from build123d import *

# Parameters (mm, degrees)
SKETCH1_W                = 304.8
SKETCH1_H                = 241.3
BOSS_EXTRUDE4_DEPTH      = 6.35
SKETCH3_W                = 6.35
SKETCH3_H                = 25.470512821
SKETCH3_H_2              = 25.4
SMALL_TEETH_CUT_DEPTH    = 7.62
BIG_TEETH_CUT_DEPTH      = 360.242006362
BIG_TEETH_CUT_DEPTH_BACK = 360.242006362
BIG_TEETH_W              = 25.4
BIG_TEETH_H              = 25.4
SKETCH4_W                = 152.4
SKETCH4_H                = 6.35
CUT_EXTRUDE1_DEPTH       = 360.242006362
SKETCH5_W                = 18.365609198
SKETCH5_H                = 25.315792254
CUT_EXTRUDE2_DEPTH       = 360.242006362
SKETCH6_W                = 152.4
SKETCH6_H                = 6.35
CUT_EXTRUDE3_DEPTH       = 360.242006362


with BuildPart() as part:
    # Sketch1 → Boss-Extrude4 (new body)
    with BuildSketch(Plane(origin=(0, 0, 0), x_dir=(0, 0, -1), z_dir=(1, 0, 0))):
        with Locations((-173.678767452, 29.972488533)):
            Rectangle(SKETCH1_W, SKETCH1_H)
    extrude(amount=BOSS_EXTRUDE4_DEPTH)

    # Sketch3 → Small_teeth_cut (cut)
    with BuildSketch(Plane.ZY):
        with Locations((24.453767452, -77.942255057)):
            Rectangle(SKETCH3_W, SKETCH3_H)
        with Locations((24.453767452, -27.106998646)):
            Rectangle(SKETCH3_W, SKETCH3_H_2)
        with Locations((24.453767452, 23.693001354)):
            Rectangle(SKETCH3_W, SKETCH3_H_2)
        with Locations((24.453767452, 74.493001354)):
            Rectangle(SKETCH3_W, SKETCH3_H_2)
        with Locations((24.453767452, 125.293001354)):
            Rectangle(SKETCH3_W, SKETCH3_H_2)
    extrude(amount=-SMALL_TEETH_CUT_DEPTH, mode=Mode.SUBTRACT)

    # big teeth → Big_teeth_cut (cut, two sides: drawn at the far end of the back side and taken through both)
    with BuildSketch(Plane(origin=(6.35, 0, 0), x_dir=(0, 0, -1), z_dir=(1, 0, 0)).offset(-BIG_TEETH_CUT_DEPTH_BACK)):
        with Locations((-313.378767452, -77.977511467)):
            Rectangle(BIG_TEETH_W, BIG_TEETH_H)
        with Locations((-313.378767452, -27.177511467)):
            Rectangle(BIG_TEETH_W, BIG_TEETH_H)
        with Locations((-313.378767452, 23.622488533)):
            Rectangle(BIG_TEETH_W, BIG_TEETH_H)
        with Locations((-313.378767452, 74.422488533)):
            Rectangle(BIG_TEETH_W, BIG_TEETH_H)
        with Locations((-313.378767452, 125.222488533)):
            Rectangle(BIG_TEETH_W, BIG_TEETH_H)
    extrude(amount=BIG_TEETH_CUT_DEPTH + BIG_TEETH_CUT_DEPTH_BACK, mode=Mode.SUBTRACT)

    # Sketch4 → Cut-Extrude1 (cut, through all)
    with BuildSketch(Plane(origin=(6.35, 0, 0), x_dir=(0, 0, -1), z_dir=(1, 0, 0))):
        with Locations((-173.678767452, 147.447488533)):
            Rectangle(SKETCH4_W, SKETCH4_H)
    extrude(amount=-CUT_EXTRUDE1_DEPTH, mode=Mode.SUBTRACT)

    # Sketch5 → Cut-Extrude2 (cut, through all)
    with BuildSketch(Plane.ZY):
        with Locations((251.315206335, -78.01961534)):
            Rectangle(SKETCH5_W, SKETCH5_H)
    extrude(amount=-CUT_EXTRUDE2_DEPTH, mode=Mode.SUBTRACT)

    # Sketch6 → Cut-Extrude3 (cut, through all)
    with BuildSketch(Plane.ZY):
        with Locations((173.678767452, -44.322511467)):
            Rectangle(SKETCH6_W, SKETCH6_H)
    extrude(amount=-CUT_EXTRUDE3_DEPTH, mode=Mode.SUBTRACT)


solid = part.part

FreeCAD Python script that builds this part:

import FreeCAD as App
import Part
import Sketcher
Q = App.Units.Quantity

doc = App.newDocument("Part")
body = doc.addObject("PartDesign::Body", "Body")

# Sketch on YZ plane
sketch1 = body.newObject("Sketcher::SketchObject", "Sketch")
sketch1.AttachmentSupport = (doc.getObject("YZ_Plane"), [""])
sketch1.MapMode = "FlatFace"
sketch1.addGeometry([
    Part.LineSegment(App.Vector(151, 326, 0), App.Vector(-91, 326, 0)),
    Part.LineSegment(App.Vector(-91, 326, 0), App.Vector(-91, 21, 0)),
    Part.LineSegment(App.Vector(-91, 21, 0), App.Vector(151, 21, 0)),
    Part.LineSegment(App.Vector(151, 21, 0), App.Vector(151, 326, 0)),
], False)
sketch1.addConstraint([
    Sketcher.Constraint("Coincident", 0, 2, 1, 1),
    Sketcher.Constraint("Coincident", 1, 2, 2, 1),
    Sketcher.Constraint("Coincident", 2, 2, 3, 1),
    Sketcher.Constraint("Coincident", 3, 2, 0, 1),
    Sketcher.Constraint("Horizontal", 0),
    Sketcher.Constraint("Vertical", 1),
    Sketcher.Constraint("Horizontal", 2),
    Sketcher.Constraint("Vertical", 3),
    Sketcher.Constraint("DistanceY", 1, 2, 1, 1, Q("12 in")),
    Sketcher.Constraint("DistanceX", 0, 2, 0, 1, Q("9.5 in")),
    Sketcher.Constraint("DistanceX", 0, 2, -1, 1, Q("90.677511 mm")),
    Sketcher.Constraint("DistanceY", -1, 1, 0, 2, Q("326.078767 mm")),
])
pad1 = body.newObject("PartDesign::Pad", "Pad")
pad1.Profile = sketch1
pad1.Length = Q("0.25 in")

# Sketch on YZ plane
sketch2 = body.newObject("Sketcher::SketchObject", "Sketch001")
sketch2.AttachmentSupport = (doc.getObject("YZ_Plane"), [""])
sketch2.MapMode = "FlatFace"
sketch2.addGeometry([
    Part.LineSegment(App.Vector(-65, 21, 0), App.Vector(-91, 21, 0)),  # 0
    Part.LineSegment(App.Vector(-91, 21, 0), App.Vector(-91, 28, 0)),  # 1
    Part.LineSegment(App.Vector(-91, 28, 0), App.Vector(-65, 28, 0)),  # 2
    Part.LineSegment(App.Vector(-65, 28, 0), App.Vector(-65, 21, 0)),  # 3
    Part.LineSegment(App.Vector(-14, 21, 0), App.Vector(-40, 21, 0)),  # 4
    Part.LineSegment(App.Vector(-40, 21, 0), App.Vector(-40, 28, 0)),  # 5
    Part.LineSegment(App.Vector(-40, 28, 0), App.Vector(-14, 28, 0)),  # 6
    Part.LineSegment(App.Vector(-14, 28, 0), App.Vector(-14, 21, 0)),  # 7
    Part.LineSegment(App.Vector(36, 21, 0), App.Vector(11, 21, 0)),  # 8
    Part.LineSegment(App.Vector(11, 21, 0), App.Vector(11, 28, 0)),  # 9
    Part.LineSegment(App.Vector(11, 28, 0), App.Vector(36, 28, 0)),  # 10
    Part.LineSegment(App.Vector(36, 28, 0), App.Vector(36, 21, 0)),  # 11
    Part.LineSegment(App.Vector(87, 21, 0), App.Vector(62, 21, 0)),  # 12
    Part.LineSegment(App.Vector(62, 21, 0), App.Vector(62, 28, 0)),  # 13
    Part.LineSegment(App.Vector(62, 28, 0), App.Vector(87, 28, 0)),  # 14
    Part.LineSegment(App.Vector(87, 28, 0), App.Vector(87, 21, 0)),  # 15
    Part.LineSegment(App.Vector(138, 21, 0), App.Vector(113, 21, 0)),  # 16
    Part.LineSegment(App.Vector(113, 21, 0), App.Vector(113, 28, 0)),  # 17
    Part.LineSegment(App.Vector(113, 28, 0), App.Vector(138, 28, 0)),  # 18
    Part.LineSegment(App.Vector(138, 28, 0), App.Vector(138, 21, 0)),  # 19
], False)
sketch2.addConstraint([
    Sketcher.Constraint("Coincident", 0, 2, 1, 1),
    Sketcher.Constraint("Coincident", 1, 2, 2, 1),
    Sketcher.Constraint("Coincident", 2, 2, 3, 1),
    Sketcher.Constraint("Coincident", 3, 2, 0, 1),
    Sketcher.Constraint("Coincident", 4, 2, 5, 1),
    Sketcher.Constraint("Coincident", 5, 2, 6, 1),
    Sketcher.Constraint("Coincident", 6, 2, 7, 1),
    Sketcher.Constraint("Coincident", 7, 2, 4, 1),
    Sketcher.Constraint("Coincident", 8, 2, 9, 1),
    Sketcher.Constraint("Coincident", 9, 2, 10, 1),
    Sketcher.Constraint("Coincident", 10, 2, 11, 1),
    Sketcher.Constraint("Coincident", 11, 2, 8, 1),
    Sketcher.Constraint("Coincident", 12, 2, 13, 1),
    Sketcher.Constraint("Coincident", 13, 2, 14, 1),
    Sketcher.Constraint("Coincident", 14, 2, 15, 1),
    Sketcher.Constraint("Coincident", 15, 2, 12, 1),
    Sketcher.Constraint("Coincident", 16, 2, 17, 1),
    Sketcher.Constraint("Coincident", 17, 2, 18, 1),
    Sketcher.Constraint("Coincident", 18, 2, 19, 1),
    Sketcher.Constraint("Coincident", 19, 2, 16, 1),
    Sketcher.Constraint("Horizontal", 0),
    Sketcher.Constraint("Vertical", 1),
    Sketcher.Constraint("Horizontal", 2),
    Sketcher.Constraint("Vertical", 3),
    Sketcher.Constraint("Horizontal", 4),
    Sketcher.Constraint("Vertical", 5),
    Sketcher.Constraint("Horizontal", 6),
    Sketcher.Constraint("Vertical", 7),
    Sketcher.Constraint("Horizontal", 8),
    Sketcher.Constraint("Vertical", 9),
    Sketcher.Constraint("Horizontal", 10),
    Sketcher.Constraint("Vertical", 11),
    Sketcher.Constraint("Horizontal", 12),
    Sketcher.Constraint("Vertical", 13),
    Sketcher.Constraint("Horizontal", 14),
    Sketcher.Constraint("Vertical", 15),
    Sketcher.Constraint("Horizontal", 16),
    Sketcher.Constraint("Vertical", 17),
    Sketcher.Constraint("Horizontal", 18),
    Sketcher.Constraint("Vertical", 19),
    Sketcher.Constraint("Horizontal", 3, 2, 4, 2),
    Sketcher.Constraint("Horizontal", 2, 2, 5, 2),
    Sketcher.Constraint("Horizontal", 7, 2, 8, 2),
    Sketcher.Constraint("Horizontal", 6, 2, 9, 2),
    Sketcher.Constraint("Horizontal", 11, 2, 12, 2),
    Sketcher.Constraint("Horizontal", 10, 2, 13, 2),
    Sketcher.Constraint("Horizontal", 15, 2, 16, 2),
    Sketcher.Constraint("Horizontal", 14, 2, 17, 2),
    Sketcher.Constraint("Equal", 6, 8),
    Sketcher.Constraint("Equal", 10, 12),
    Sketcher.Constraint("Equal", 14, 16),
    Sketcher.Constraint("DistanceX", 4, 2, 4, 1, Q("1 in")),
    Sketcher.Constraint("DistanceX", 3, 2, 4, 2, Q("1 in")),
    Sketcher.Constraint("DistanceX", 7, 2, 8, 2, Q("1 in")),
    Sketcher.Constraint("DistanceX", 11, 2, 12, 2, Q("1 in")),
    Sketcher.Constraint("DistanceX", 15, 2, 16, 2, Q("1 in")),
    Sketcher.Constraint("DistanceY", 1, 1, 1, 2, Q("0.25 in")),
    Sketcher.Constraint("DistanceX", 2, 2, -1, 1, Q("65.206999 mm")),
    Sketcher.Constraint("DistanceX", 0, 2, 0, 1, Q("25.470513 mm")),
    Sketcher.Constraint("DistanceY", -1, 1, 0, 2, Q("21.278767 mm")),
])
pocket1 = body.newObject("PartDesign::Pocket", "Pocket")
pocket1.Profile = sketch2
pocket1.Length = Q("0.3 in")
pocket1.Reversed = True

# Sketch on YZ plane
sketch3 = body.newObject("Sketcher::SketchObject", "Sketch002")
sketch3.AttachmentSupport = (doc.getObject("YZ_Plane"), [""])
sketch3.MapMode = "FlatFace"
sketch3.AttachmentOffset = App.Placement(App.Vector(0, 0, 0.25 * 25.4), App.Rotation())
sketch3.addGeometry([
    Part.LineSegment(App.Vector(-65, 326, 0), App.Vector(-91, 326, 0)),  # 0
    Part.LineSegment(App.Vector(-91, 326, 0), App.Vector(-91, 301, 0)),  # 1
    Part.LineSegment(App.Vector(-91, 301, 0), App.Vector(-65, 301, 0)),  # 2
    Part.LineSegment(App.Vector(-65, 301, 0), App.Vector(-65, 326, 0)),  # 3
    Part.LineSegment(App.Vector(-14, 326, 0), App.Vector(-40, 326, 0)),  # 4
    Part.LineSegment(App.Vector(-40, 326, 0), App.Vector(-40, 301, 0)),  # 5
    Part.LineSegment(App.Vector(-40, 301, 0), App.Vector(-14, 301, 0)),  # 6
    Part.LineSegment(App.Vector(-14, 301, 0), App.Vector(-14, 326, 0)),  # 7
    Part.LineSegment(App.Vector(36, 326, 0), App.Vector(11, 326, 0)),  # 8
    Part.LineSegment(App.Vector(11, 326, 0), App.Vector(11, 301, 0)),  # 9
    Part.LineSegment(App.Vector(11, 301, 0), App.Vector(36, 301, 0)),  # 10
    Part.LineSegment(App.Vector(36, 301, 0), App.Vector(36, 326, 0)),  # 11
    Part.LineSegment(App.Vector(87, 326, 0), App.Vector(62, 326, 0)),  # 12
    Part.LineSegment(App.Vector(62, 326, 0), App.Vector(62, 301, 0)),  # 13
    Part.LineSegment(App.Vector(62, 301, 0), App.Vector(87, 301, 0)),  # 14
    Part.LineSegment(App.Vector(87, 301, 0), App.Vector(87, 326, 0)),  # 15
    Part.LineSegment(App.Vector(138, 326, 0), App.Vector(113, 326, 0)),  # 16
    Part.LineSegment(App.Vector(113, 326, 0), App.Vector(113, 301, 0)),  # 17
    Part.LineSegment(App.Vector(113, 301, 0), App.Vector(138, 301, 0)),  # 18
    Part.LineSegment(App.Vector(138, 301, 0), App.Vector(138, 326, 0)),  # 19
], False)
sketch3.addConstraint([
    Sketcher.Constraint("Coincident", 0, 2, 1, 1),
    Sketcher.Constraint("Coincident", 1, 2, 2, 1),
    Sketcher.Constraint("Coincident", 2, 2, 3, 1),
    Sketcher.Constraint("Coincident", 3, 2, 0, 1),
    Sketcher.Constraint("Coincident", 4, 2, 5, 1),
    Sketcher.Constraint("Coincident", 5, 2, 6, 1),
    Sketcher.Constraint("Coincident", 6, 2, 7, 1),
    Sketcher.Constraint("Coincident", 7, 2, 4, 1),
    Sketcher.Constraint("Coincident", 8, 2, 9, 1),
    Sketcher.Constraint("Coincident", 9, 2, 10, 1),
    Sketcher.Constraint("Coincident", 10, 2, 11, 1),
    Sketcher.Constraint("Coincident", 11, 2, 8, 1),
    Sketcher.Constraint("Coincident", 12, 2, 13, 1),
    Sketcher.Constraint("Coincident", 13, 2, 14, 1),
    Sketcher.Constraint("Coincident", 14, 2, 15, 1),
    Sketcher.Constraint("Coincident", 15, 2, 12, 1),
    Sketcher.Constraint("Coincident", 16, 2, 17, 1),
    Sketcher.Constraint("Coincident", 17, 2, 18, 1),
    Sketcher.Constraint("Coincident", 18, 2, 19, 1),
    Sketcher.Constraint("Coincident", 19, 2, 16, 1),
    Sketcher.Constraint("Horizontal", 0),
    Sketcher.Constraint("Vertical", 1),
    Sketcher.Constraint("Horizontal", 2),
    Sketcher.Constraint("Vertical", 3),
    Sketcher.Constraint("Horizontal", 4),
    Sketcher.Constraint("Vertical", 5),
    Sketcher.Constraint("Horizontal", 6),
    Sketcher.Constraint("Vertical", 7),
    Sketcher.Constraint("Horizontal", 8),
    Sketcher.Constraint("Vertical", 9),
    Sketcher.Constraint("Horizontal", 10),
    Sketcher.Constraint("Vertical", 11),
    Sketcher.Constraint("Horizontal", 12),
    Sketcher.Constraint("Vertical", 13),
    Sketcher.Constraint("Horizontal", 14),
    Sketcher.Constraint("Vertical", 15),
    Sketcher.Constraint("Horizontal", 16),
    Sketcher.Constraint("Vertical", 17),
    Sketcher.Constraint("Horizontal", 18),
    Sketcher.Constraint("Vertical", 19),
    Sketcher.Constraint("Horizontal", 3, 2, 4, 2),
    Sketcher.Constraint("Horizontal", 2, 2, 5, 2),
    Sketcher.Constraint("Horizontal", 7, 2, 8, 2),
    Sketcher.Constraint("Horizontal", 6, 2, 9, 2),
    Sketcher.Constraint("Horizontal", 11, 2, 12, 2),
    Sketcher.Constraint("Horizontal", 10, 2, 13, 2),
    Sketcher.Constraint("Horizontal", 15, 2, 16, 2),
    Sketcher.Constraint("Horizontal", 14, 2, 17, 2),
    Sketcher.Constraint("Equal", 2, 4),
    Sketcher.Constraint("Equal", 6, 8),
    Sketcher.Constraint("Equal", 10, 12),
    Sketcher.Constraint("Equal", 14, 16),
    Sketcher.Constraint("Equal", 18, 1),
    Sketcher.Constraint("DistanceX", 0, 2, 0, 1, Q("1 in")),
    Sketcher.Constraint("DistanceX", 3, 2, 4, 2, Q("1 in")),
    Sketcher.Constraint("DistanceX", 7, 2, 8, 2, Q("1 in")),
    Sketcher.Constraint("DistanceX", 11, 2, 12, 2, Q("1 in")),
    Sketcher.Constraint("DistanceX", 15, 2, 16, 2, Q("1 in")),
    Sketcher.Constraint("DistanceX", 0, 2, -1, 1, Q("90.677511 mm")),
    Sketcher.Constraint("DistanceY", -1, 1, 0, 2, Q("326.078767 mm")),
])
pocket2 = body.newObject("PartDesign::Pocket", "Pocket001")
pocket2.Profile = sketch3
pocket2.Type = "ThroughAll"
pocket2.Midplane = True

# Sketch on YZ plane
sketch4 = body.newObject("Sketcher::SketchObject", "Sketch003")
sketch4.AttachmentSupport = (doc.getObject("YZ_Plane"), [""])
sketch4.MapMode = "FlatFace"
sketch4.AttachmentOffset = App.Placement(App.Vector(0, 0, 0.25 * 25.4), App.Rotation())
sketch4.addGeometry([
    Part.LineSegment(App.Vector(151, 250, 0), App.Vector(144, 250, 0)),
    Part.LineSegment(App.Vector(144, 250, 0), App.Vector(144, 97, 0)),
    Part.LineSegment(App.Vector(144, 97, 0), App.Vector(151, 97, 0)),
    Part.LineSegment(App.Vector(151, 97, 0), App.Vector(151, 250, 0)),
], False)
sketch4.addConstraint([
    Sketcher.Constraint("Coincident", 0, 2, 1, 1),
    Sketcher.Constraint("Coincident", 1, 2, 2, 1),
    Sketcher.Constraint("Coincident", 2, 2, 3, 1),
    Sketcher.Constraint("Coincident", 3, 2, 0, 1),
    Sketcher.Constraint("Horizontal", 0),
    Sketcher.Constraint("Vertical", 1),
    Sketcher.Constraint("Horizontal", 2),
    Sketcher.Constraint("Vertical", 3),
    Sketcher.Constraint("DistanceY", 1, 2, 1, 1, Q("6 in")),
    Sketcher.Constraint("DistanceX", 0, 2, 0, 1, Q("0.25 in")),
    Sketcher.Constraint("DistanceX", -1, 1, 0, 2, Q("144.272489 mm")),
    Sketcher.Constraint("DistanceY", -1, 1, 0, 2, Q("249.878767 mm")),
])
pocket3 = body.newObject("PartDesign::Pocket", "Pocket002")
pocket3.Profile = sketch4
pocket3.Type = "ThroughAll"

# Sketch on YZ plane
sketch5 = body.newObject("Sketcher::SketchObject", "Sketch004")
sketch5.AttachmentSupport = (doc.getObject("YZ_Plane"), [""])
sketch5.MapMode = "FlatFace"
sketch5.addGeometry([
    Part.LineSegment(App.Vector(-65, 242, 0), App.Vector(-91, 242, 0)),
    Part.LineSegment(App.Vector(-91, 242, 0), App.Vector(-91, 260, 0)),
    Part.LineSegment(App.Vector(-91, 260, 0), App.Vector(-65, 260, 0)),
    Part.LineSegment(App.Vector(-65, 260, 0), App.Vector(-65, 242, 0)),
], False)
sketch5.addConstraint([
    Sketcher.Constraint("Coincident", 0, 2, 1, 1),
    Sketcher.Constraint("Coincident", 1, 2, 2, 1),
    Sketcher.Constraint("Coincident", 2, 2, 3, 1),
    Sketcher.Constraint("Coincident", 3, 2, 0, 1),
    Sketcher.Constraint("Horizontal", 0),
    Sketcher.Constraint("Vertical", 1),
    Sketcher.Constraint("Horizontal", 2),
    Sketcher.Constraint("Vertical", 3),
    Sketcher.Constraint("DistanceY", 1, 1, 1, 2, Q("18.365609 mm")),
    Sketcher.Constraint("DistanceY", -1, 1, 0, 2, Q("242.132402 mm")),
    Sketcher.Constraint("DistanceX", 0, 2, 0, 1, Q("25.315792 mm")),
    Sketcher.Constraint("DistanceX", 0, 2, -1, 1, Q("90.677511 mm")),
])
pocket4 = body.newObject("PartDesign::Pocket", "Pocket003")
pocket4.Profile = sketch5
pocket4.Type = "ThroughAll"
pocket4.Reversed = True

# Sketch on YZ plane
sketch6 = body.newObject("Sketcher::SketchObject", "Sketch005")
sketch6.AttachmentSupport = (doc.getObject("YZ_Plane"), [""])
sketch6.MapMode = "FlatFace"
sketch6.addGeometry([
    Part.LineSegment(App.Vector(-41, 97, 0), App.Vector(-47, 97, 0)),
    Part.LineSegment(App.Vector(-47, 97, 0), App.Vector(-47, 250, 0)),
    Part.LineSegment(App.Vector(-47, 250, 0), App.Vector(-41, 250, 0)),
    Part.LineSegment(App.Vector(-41, 250, 0), App.Vector(-41, 97, 0)),
], False)
sketch6.addConstraint([
    Sketcher.Constraint("Coincident", 0, 2, 1, 1),
    Sketcher.Constraint("Coincident", 1, 2, 2, 1),
    Sketcher.Constraint("Coincident", 2, 2, 3, 1),
    Sketcher.Constraint("Coincident", 3, 2, 0, 1),
    Sketcher.Constraint("Horizontal", 0),
    Sketcher.Constraint("Vertical", 1),
    Sketcher.Constraint("Horizontal", 2),
    Sketcher.Constraint("Vertical", 3),
    Sketcher.Constraint("DistanceY", 1, 1, 1, 2, Q("6 in")),
    Sketcher.Constraint("DistanceX", 0, 2, 0, 1, Q("0.25 in")),
    Sketcher.Constraint("DistanceX", 0, 2, -1, 1, Q("47.497511 mm")),
    Sketcher.Constraint("DistanceY", -1, 1, 0, 2, Q("97.478767 mm")),
])
pocket5 = body.newObject("PartDesign::Pocket", "Pocket004")
pocket5.Profile = sketch6
pocket5.Type = "ThroughAll"
pocket5.Reversed = True

doc.recompute()
